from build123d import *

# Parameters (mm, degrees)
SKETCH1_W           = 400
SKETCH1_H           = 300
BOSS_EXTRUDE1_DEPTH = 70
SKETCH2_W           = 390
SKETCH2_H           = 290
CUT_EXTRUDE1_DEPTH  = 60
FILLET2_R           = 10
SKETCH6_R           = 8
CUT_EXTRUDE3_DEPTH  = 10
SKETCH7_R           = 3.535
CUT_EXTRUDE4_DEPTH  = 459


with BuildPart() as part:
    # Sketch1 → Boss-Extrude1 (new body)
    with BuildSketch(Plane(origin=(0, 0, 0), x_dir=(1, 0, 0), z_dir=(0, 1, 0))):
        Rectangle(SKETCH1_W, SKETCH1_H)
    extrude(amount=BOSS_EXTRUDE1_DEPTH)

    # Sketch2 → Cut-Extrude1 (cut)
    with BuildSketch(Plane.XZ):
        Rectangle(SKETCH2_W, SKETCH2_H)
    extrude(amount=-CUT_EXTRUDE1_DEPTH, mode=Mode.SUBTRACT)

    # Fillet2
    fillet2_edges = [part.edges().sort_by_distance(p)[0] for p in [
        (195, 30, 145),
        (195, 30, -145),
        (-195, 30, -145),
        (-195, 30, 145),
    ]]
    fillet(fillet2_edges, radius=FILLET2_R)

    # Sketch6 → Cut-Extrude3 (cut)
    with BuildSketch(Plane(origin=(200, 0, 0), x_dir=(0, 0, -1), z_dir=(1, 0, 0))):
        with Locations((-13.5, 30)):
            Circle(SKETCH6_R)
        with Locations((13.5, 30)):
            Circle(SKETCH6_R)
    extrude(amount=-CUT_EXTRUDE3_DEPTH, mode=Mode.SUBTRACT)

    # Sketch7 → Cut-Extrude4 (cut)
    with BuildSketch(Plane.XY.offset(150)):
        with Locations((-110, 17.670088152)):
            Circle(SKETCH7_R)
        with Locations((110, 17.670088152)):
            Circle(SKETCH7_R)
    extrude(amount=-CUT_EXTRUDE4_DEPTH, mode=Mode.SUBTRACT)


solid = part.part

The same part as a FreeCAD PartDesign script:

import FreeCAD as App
import Part
import Sketcher
from FreeCAD import Vector


def edges_at(feature, points):
    """Names of the edges that pass closest to the given points."""
    edges = feature.Shape.Edges
    near = lambda p: min(range(len(edges)), key=lambda i: edges[i].distToShape(Part.Vertex(*p))[0])
    return sorted({f"Edge{near(p) + 1}" for p in points})

doc = App.newDocument("Part")
body = doc.addObject("PartDesign::Body", "Body")

sketch1 = doc.addObject("Sketcher::SketchObject", "Sketch")
body.addObject(sketch1)
sketch1.AttachmentSupport = (doc.XZ_Plane, [""])
sketch1.MapMode = "FlatFace"
sketch1.addGeometry(Part.LineSegment(Vector(-200, -150, 0), Vector(-200, 150, 0)), False)
sketch1.addGeometry(Part.LineSegment(Vector(-200, 150, 0), Vector(200, 150, 0)), False)
sketch1.addGeometry(Part.LineSegment(Vector(200, 150, 0), Vector(200, -150, 0)), False)
sketch1.addGeometry(Part.LineSegment(Vector(200, -150, 0), Vector(-200, -150, 0)), False)
sketch1.addConstraint(Sketcher.Constraint("Coincident", 0, 2, 1, 1))
sketch1.addConstraint(Sketcher.Constraint("Coincident", 1, 2, 2, 1))
sketch1.addConstraint(Sketcher.Constraint("Coincident", 2, 2, 3, 1))
sketch1.addConstraint(Sketcher.Constraint("Coincident", 3, 2, 0, 1))
sketch1.addConstraint(Sketcher.Constraint("Vertical", 0))
sketch1.addConstraint(Sketcher.Constraint("Horizontal", 1))
sketch1.addConstraint(Sketcher.Constraint("Vertical", 2))
sketch1.addConstraint(Sketcher.Constraint("Horizontal", 3))
sketch1.addConstraint(Sketcher.Constraint("Symmetric", 0, 2, 2, 2, -1, 1))
sketch1.addConstraint(Sketcher.Constraint("DistanceX", 1, 1, 1, 2, 400.0))
sketch1.addConstraint(Sketcher.Constraint("DistanceY", 0, 1, 0, 2, 300.0))
pad1 = doc.addObject("PartDesign::Pad", "Pad")
body.addObject(pad1)
pad1.Profile = sketch1
pad1.Length = 70
pad1.Reversed = True

sketch2 = doc.addObject("Sketcher::SketchObject", "Sketch001")
body.addObject(sketch2)
sketch2.AttachmentSupport = (doc.XZ_Plane, [""])
sketch2.MapMode = "FlatFace"
sketch2.addGeometry(Part.LineSegment(Vector(-195, 145, 0), Vector(-195, -145, 0)), False)
sketch2.addGeometry(Part.LineSegment(Vector(-195, -145, 0), Vector(195, -145, 0)), False)
sketch2.addGeometry(Part.LineSegment(Vector(195, -145, 0), Vector(195, 145, 0)), False)
sketch2.addGeometry(Part.LineSegment(Vector(195, 145, 0), Vector(-195, 145, 0)), False)
sketch2.addConstraint(Sketcher.Constraint("Coincident", 0, 2, 1, 1))
sketch2.addConstraint(Sketcher.Constraint("Coincident", 1, 2, 2, 1))
sketch2.addConstraint(Sketcher.Constraint("Coincident", 2, 2, 3, 1))
sketch2.addConstraint(Sketcher.Constraint("Coincident", 3, 2, 0, 1))
sketch2.addConstraint(Sketcher.Constraint("Vertical", 0))
sketch2.addConstraint(Sketcher.Constraint("Horizontal", 1))
sketch2.addConstraint(Sketcher.Constraint("Vertical", 2))
sketch2.addConstraint(Sketcher.Constraint("Horizontal", 3))
sketch2.addConstraint(Sketcher.Constraint("Symmetric", 0, 2, 2, 2, -1, 1))
sketch2.addConstraint(Sketcher.Constraint("DistanceX", 1, 1, 1, 2, 390.0))
sketch2.addConstraint(Sketcher.Constraint("DistanceY", 0, 2, 0, 1, 290.0))
pocket1 = doc.addObject("PartDesign::Pocket", "Pocket")
body.addObject(pocket1)
pocket1.Profile = sketch2
pocket1.Length = 60
doc.recompute()

fillet = doc.addObject("PartDesign::Fillet", "Fillet")
body.addObject(fillet)
fillet.Base = (pocket1, edges_at(pocket1, [
    (195, 30, 145),
    (195, 30, -145),
    (-195, 30, -145),
    (-195, 30, 145),
]))
fillet.Radius = 10

sketch3 = doc.addObject("Sketcher::SketchObject", "Sketch002")
body.addObject(sketch3)
sketch3.AttachmentSupport = (doc.YZ_Plane, [""])
sketch3.MapMode = "FlatFace"
sketch3.AttachmentOffset = App.Placement(Vector(0, 0, 200), App.Rotation())
sketch3.addGeometry(Part.Circle(Vector(30, 14, 0), Vector(0, 0, 1), 8), False)
sketch3.addGeometry(Part.Circle(Vector(30, -14, 0), Vector(0, 0, 1), 8), False)
sketch3.addConstraint(Sketcher.Constraint("Equal", 0, 1))
sketch3.addConstraint(Sketcher.Constraint("Symmetric", 0, 3, 1, 3, -1))
sketch3.addConstraint(Sketcher.Constraint("Diameter", 0, 16.0))
sketch3.addConstraint(Sketcher.Constraint("DistanceX", -1, 1, 0, 3, 30.0))
sketch3.addConstraint(Sketcher.Constraint("DistanceY", 1, 3, 0, 3, 27.0))
pocket2 = doc.addObject("PartDesign::Pocket", "Pocket001")
body.addObject(pocket2)
pocket2.Profile = sketch3
pocket2.Length = 10

sketch4 = doc.addObject("Sketcher::SketchObject", "Sketch003")
body.addObject(sketch4)
sketch4.AttachmentSupport = (doc.XY_Plane, [""])
sketch4.MapMode = "FlatFace"
sketch4.AttachmentOffset = App.Placement(Vector(0, 0, 150), App.Rotation())
sketch4.addGeometry(Part.Circle(Vector(-110, 17.7, 0), Vector(0, 0, 1), 3.5), False)
sketch4.addGeometry(Part.Circle(Vector(110, 17.7, 0), Vector(0, 0, 1), 3.5), False)
sketch4.addConstraint(Sketcher.Constraint("Equal", 0, 1))
sketch4.addConstraint(Sketcher.Constraint("Symmetric", 0, 3, 1, 3, -2))
sketch4.addConstraint(Sketcher.Constraint("Diameter", 0, 7.07))
sketch4.addConstraint(Sketcher.Constraint("DistanceX", 0, 3, -1, 1, 110.0))
sketch4.addConstraint(Sketcher.Constraint("DistanceY", -1, 1, 0, 3, 17.670088))
pocket3 = doc.addObject("PartDesign::Pocket", "Pocket002")
body.addObject(pocket3)
pocket3.Profile = sketch4
pocket3.Length = 459

doc.recompute()
